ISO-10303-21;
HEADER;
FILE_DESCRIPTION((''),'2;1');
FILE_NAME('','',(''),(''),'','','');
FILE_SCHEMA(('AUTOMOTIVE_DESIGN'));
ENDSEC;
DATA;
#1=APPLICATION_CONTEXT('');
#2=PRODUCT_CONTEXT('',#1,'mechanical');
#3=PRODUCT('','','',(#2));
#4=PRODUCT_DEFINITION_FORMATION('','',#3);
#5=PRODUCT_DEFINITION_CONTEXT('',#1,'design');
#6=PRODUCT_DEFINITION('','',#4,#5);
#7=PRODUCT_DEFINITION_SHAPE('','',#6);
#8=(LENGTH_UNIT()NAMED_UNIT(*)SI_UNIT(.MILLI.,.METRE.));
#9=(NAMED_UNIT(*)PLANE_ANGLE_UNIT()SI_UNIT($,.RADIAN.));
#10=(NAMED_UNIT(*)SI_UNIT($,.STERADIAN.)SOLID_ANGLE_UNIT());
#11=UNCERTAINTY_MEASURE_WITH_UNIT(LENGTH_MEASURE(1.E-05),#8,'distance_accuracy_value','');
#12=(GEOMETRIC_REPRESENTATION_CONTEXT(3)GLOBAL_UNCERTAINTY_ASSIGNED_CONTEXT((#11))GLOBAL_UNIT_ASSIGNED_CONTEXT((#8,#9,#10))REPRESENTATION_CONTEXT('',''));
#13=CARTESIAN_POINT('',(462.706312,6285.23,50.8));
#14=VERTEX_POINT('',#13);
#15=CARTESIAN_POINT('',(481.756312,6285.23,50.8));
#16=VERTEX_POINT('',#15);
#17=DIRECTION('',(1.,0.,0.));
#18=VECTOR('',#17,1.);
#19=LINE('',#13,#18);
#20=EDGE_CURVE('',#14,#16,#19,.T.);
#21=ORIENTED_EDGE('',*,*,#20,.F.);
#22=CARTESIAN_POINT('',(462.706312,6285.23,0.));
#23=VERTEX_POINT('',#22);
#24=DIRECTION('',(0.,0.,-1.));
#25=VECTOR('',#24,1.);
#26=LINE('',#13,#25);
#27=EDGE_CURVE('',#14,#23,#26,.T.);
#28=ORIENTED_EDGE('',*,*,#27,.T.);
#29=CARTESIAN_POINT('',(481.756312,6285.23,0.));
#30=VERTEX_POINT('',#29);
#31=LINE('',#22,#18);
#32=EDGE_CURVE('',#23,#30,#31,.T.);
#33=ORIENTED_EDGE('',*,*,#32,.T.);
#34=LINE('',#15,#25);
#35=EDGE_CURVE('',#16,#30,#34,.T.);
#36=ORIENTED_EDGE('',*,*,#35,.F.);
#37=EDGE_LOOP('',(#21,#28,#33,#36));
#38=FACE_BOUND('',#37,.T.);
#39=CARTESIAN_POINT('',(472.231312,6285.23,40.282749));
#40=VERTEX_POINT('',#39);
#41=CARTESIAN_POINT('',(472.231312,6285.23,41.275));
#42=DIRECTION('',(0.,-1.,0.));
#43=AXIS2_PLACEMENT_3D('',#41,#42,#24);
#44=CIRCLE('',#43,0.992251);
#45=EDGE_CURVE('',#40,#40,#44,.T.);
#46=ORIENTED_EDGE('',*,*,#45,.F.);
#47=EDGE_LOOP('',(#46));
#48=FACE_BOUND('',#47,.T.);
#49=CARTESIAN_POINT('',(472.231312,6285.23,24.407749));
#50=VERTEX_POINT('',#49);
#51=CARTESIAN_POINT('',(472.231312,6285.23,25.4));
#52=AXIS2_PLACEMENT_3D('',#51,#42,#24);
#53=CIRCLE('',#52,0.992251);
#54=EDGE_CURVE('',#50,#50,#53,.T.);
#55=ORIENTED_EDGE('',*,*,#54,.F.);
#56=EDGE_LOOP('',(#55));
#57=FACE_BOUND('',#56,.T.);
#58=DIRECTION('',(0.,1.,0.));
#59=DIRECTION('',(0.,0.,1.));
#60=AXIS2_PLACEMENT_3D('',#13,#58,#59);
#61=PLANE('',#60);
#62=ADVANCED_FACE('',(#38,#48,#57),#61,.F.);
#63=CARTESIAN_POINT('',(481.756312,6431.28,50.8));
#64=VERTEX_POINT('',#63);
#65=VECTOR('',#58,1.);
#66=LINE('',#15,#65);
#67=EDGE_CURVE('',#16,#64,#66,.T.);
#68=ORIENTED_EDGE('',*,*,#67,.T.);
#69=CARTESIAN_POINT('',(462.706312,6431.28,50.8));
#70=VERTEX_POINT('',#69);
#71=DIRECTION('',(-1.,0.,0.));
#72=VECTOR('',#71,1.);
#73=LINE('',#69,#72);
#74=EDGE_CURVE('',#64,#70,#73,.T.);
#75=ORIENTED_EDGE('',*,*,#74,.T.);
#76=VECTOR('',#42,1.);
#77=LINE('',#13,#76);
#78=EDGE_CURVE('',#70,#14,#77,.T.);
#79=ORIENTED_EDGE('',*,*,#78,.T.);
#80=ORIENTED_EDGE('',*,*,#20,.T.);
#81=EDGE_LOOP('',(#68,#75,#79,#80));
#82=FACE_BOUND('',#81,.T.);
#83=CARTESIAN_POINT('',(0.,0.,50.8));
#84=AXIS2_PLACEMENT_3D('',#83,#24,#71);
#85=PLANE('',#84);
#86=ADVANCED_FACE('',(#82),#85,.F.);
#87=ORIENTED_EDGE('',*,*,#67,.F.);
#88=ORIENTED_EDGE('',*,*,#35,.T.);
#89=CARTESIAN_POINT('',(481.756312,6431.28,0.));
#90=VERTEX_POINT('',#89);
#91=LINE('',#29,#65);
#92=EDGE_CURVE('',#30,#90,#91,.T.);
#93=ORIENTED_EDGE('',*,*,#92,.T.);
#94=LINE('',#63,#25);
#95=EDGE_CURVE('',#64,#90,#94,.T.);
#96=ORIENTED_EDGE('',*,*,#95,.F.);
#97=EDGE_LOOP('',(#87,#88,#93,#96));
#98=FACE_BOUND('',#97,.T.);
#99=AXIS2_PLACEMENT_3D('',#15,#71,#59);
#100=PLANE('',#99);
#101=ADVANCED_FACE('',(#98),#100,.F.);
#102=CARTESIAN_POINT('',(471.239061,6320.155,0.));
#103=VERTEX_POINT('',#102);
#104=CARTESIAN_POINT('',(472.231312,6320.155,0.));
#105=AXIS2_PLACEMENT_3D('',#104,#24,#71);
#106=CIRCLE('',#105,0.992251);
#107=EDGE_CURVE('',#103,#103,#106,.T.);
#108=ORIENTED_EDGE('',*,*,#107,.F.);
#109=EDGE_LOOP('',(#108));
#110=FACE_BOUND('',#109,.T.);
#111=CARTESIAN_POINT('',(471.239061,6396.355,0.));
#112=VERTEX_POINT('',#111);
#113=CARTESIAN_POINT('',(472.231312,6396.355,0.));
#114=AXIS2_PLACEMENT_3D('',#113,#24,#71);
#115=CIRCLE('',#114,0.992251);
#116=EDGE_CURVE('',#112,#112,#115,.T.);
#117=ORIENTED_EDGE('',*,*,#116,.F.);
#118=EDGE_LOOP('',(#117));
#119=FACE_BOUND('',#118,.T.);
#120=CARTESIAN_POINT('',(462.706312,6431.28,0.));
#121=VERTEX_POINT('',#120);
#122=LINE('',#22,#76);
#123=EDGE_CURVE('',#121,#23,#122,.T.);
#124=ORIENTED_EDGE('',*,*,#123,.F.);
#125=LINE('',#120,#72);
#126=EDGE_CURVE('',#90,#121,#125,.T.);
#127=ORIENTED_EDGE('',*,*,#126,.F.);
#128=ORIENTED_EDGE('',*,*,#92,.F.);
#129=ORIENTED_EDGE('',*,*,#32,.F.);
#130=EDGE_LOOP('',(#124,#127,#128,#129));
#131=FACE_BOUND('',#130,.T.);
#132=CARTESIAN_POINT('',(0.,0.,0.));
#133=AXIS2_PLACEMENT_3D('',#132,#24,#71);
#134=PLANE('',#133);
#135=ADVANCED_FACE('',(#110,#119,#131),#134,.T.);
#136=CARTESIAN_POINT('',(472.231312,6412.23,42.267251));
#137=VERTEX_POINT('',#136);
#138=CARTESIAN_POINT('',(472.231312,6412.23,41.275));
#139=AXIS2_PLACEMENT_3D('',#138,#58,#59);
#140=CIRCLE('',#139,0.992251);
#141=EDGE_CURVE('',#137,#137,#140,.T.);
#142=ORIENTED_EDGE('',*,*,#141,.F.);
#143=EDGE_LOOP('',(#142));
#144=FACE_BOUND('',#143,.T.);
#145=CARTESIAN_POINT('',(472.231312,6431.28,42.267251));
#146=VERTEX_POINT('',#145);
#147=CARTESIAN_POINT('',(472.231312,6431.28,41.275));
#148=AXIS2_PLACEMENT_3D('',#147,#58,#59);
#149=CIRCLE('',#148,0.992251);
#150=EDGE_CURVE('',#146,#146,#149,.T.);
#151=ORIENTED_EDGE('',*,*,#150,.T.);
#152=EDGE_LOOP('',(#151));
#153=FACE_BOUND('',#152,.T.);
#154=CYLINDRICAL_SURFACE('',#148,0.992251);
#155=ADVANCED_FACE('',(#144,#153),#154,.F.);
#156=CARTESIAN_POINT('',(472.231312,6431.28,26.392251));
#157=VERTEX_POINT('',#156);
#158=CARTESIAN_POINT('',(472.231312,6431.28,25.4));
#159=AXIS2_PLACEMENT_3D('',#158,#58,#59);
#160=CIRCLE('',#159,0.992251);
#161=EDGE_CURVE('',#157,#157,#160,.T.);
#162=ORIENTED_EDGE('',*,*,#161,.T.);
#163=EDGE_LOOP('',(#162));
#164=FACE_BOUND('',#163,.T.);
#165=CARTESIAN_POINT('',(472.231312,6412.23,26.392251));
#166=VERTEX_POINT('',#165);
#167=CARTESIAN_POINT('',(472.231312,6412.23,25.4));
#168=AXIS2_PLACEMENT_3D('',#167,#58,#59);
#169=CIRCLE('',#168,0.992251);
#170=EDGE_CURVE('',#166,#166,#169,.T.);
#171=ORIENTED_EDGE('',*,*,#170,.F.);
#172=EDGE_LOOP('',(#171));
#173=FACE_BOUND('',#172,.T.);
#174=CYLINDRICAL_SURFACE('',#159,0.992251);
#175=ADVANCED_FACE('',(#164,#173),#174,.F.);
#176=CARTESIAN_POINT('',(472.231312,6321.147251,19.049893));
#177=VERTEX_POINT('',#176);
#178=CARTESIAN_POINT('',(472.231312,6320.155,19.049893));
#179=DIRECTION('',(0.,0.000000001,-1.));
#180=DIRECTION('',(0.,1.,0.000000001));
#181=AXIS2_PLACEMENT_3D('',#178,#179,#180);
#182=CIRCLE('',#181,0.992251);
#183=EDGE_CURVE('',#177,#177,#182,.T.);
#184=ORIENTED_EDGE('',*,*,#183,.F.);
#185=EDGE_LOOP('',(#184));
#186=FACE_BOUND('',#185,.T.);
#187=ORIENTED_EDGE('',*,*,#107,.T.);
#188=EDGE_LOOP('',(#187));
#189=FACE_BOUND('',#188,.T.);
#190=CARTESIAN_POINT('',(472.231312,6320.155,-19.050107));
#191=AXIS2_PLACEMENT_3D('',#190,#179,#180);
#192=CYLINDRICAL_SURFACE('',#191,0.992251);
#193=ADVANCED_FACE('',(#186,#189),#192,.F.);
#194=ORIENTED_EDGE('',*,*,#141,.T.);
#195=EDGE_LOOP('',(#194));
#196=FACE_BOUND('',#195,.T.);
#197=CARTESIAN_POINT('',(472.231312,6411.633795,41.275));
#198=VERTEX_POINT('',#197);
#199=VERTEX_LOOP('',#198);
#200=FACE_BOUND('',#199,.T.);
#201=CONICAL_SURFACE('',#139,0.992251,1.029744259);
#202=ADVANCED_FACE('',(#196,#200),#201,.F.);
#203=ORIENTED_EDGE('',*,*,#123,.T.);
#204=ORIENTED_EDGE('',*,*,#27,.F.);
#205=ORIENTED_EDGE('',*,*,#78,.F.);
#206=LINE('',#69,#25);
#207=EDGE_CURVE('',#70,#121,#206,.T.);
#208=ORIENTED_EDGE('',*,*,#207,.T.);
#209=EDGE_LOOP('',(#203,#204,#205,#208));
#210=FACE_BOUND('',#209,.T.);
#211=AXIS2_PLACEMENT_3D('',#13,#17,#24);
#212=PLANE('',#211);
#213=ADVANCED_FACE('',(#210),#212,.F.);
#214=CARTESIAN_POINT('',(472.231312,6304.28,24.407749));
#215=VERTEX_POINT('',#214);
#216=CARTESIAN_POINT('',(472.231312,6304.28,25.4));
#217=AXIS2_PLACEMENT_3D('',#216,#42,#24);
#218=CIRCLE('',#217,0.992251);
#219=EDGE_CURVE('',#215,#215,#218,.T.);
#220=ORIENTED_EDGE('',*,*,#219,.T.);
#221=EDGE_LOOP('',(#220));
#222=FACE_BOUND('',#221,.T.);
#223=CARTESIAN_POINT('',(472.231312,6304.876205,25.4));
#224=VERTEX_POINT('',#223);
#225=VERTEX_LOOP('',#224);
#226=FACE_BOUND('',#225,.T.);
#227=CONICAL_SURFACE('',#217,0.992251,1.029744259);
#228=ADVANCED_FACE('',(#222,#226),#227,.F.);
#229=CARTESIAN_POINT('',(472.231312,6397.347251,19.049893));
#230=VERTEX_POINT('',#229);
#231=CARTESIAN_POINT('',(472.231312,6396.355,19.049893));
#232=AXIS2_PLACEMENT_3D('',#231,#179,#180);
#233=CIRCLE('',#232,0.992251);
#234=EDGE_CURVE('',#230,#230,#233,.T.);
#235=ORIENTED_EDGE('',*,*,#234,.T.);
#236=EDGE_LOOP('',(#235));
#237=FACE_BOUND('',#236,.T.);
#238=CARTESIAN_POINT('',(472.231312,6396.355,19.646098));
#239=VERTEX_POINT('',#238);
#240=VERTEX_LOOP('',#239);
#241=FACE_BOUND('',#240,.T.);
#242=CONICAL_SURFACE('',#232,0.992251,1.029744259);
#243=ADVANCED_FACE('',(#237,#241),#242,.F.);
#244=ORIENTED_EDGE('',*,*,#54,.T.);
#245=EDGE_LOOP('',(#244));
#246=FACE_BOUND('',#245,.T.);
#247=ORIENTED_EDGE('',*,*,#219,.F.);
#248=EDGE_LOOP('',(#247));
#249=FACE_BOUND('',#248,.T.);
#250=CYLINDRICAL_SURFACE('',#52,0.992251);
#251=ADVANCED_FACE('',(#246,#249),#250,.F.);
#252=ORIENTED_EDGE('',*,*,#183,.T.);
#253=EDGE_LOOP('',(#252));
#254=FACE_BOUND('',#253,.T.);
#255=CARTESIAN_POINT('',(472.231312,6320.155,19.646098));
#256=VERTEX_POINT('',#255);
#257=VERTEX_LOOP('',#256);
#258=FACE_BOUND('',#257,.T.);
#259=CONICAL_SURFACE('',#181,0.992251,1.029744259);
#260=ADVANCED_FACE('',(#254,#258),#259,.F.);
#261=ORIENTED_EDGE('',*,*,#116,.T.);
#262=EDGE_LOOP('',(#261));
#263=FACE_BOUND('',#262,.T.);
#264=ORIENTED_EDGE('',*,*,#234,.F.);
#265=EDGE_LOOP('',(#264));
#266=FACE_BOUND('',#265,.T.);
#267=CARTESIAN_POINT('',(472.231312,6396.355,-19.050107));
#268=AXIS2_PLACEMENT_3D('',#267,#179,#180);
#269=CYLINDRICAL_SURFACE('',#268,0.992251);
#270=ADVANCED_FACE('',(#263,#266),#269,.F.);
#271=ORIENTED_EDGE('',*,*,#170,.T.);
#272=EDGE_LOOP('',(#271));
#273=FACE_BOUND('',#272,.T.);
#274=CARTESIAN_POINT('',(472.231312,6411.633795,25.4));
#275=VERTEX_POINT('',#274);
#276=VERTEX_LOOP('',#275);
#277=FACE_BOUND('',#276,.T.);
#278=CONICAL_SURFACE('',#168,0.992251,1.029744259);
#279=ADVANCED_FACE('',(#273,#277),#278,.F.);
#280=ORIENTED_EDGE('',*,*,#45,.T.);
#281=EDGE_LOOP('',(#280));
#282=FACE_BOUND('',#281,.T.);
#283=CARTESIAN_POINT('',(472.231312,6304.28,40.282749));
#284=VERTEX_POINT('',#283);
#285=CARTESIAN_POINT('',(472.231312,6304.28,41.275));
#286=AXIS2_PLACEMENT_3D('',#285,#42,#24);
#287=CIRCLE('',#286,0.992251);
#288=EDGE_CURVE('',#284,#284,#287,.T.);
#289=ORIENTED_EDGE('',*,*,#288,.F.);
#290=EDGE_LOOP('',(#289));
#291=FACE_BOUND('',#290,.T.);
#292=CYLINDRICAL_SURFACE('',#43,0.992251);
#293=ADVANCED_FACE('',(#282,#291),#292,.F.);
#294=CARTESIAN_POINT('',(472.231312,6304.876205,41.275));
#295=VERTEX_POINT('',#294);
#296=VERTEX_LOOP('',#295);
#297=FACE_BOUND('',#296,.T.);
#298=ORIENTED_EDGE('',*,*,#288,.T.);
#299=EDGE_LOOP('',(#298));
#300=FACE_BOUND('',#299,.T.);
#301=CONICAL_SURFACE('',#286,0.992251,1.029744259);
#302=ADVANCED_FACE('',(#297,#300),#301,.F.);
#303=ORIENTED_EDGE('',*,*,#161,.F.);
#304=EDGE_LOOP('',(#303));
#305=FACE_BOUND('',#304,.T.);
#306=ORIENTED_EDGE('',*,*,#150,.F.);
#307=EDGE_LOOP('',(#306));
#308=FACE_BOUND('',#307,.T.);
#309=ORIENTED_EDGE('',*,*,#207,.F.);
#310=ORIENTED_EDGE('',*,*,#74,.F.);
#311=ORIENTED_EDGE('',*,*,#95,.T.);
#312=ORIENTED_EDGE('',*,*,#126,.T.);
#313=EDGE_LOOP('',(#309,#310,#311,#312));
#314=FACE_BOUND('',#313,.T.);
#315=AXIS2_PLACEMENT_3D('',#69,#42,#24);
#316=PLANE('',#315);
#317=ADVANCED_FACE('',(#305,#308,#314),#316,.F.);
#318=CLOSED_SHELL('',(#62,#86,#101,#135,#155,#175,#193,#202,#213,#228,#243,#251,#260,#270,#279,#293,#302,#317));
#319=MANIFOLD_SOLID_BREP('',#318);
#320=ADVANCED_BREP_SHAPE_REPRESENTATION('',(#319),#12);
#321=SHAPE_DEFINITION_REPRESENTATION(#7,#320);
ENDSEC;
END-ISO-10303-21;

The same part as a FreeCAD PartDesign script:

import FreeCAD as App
import Part
import Sketcher

V = App.Vector
Q = App.Units.Quantity

doc = App.newDocument("Part")
params = doc.addObject("Spreadsheet::Sheet", "Params")
for row, (alias, value) in enumerate([
    ("sketch1_width", "0.75 in"),
    ("sketch1_height", "5.75 in"),
    ("pad1_length", "2 in"),
    ("hole_diameter", "1.984502 mm"),
    ("hole_depth", "1.5 in"),
    ("hole2_diameter", "1.984502 mm"),
    ("hole2_depth", "1.5 in"),
    ("hole3_diameter", "1.984502 mm"),
    ("hole3_depth", "0.75 in"),
    ("hole4_diameter", "1.984502 mm"),
    ("hole4_depth", "0.75 in"),
], start=1):
    params.set(f"A{row}", alias)
    params.set(f"B{row}", "=" + value)
    params.setAlias(f"B{row}", alias)

body = doc.addObject("PartDesign::Body", "Body")

# Sketch on XY plane
sketch1 = body.newObject("Sketcher::SketchObject", "Sketch")
sketch1.AttachmentSupport = (doc.getObject("XY_Plane"), [""])
sketch1.MapMode = "FlatFace"
sketch1.addGeometry([
    Part.LineSegment(V(463, 6431, 0), V(463, 6285, 0)),
    Part.LineSegment(V(463, 6285, 0), V(482, 6285, 0)),
    Part.LineSegment(V(482, 6285, 0), V(482, 6431, 0)),
    Part.LineSegment(V(482, 6431, 0), V(463, 6431, 0)),
], False)
sketch1.addConstraint([
    Sketcher.Constraint("Coincident", 0, 2, 1, 1),
    Sketcher.Constraint("Coincident", 1, 2, 2, 1),
    Sketcher.Constraint("Coincident", 2, 2, 3, 1),
    Sketcher.Constraint("Coincident", 3, 2, 0, 1),
    Sketcher.Constraint("Vertical", 0),
    Sketcher.Constraint("Horizontal", 1),
    Sketcher.Constraint("Vertical", 2),
    Sketcher.Constraint("Horizontal", 3),
    Sketcher.Constraint("DistanceX", 1, 1, 1, 2, Q("0.75 in")),
    Sketcher.Constraint("DistanceY", 0, 2, 0, 1, Q("5.75 in")),
    Sketcher.Constraint("DistanceY", -1, 1, 2, 2, Q("253.2 in")),
    Sketcher.Constraint("DistanceX", -1, 1, 0, 2, 462.706312),
])
sketch1.setExpression("Constraints[8]", "Params.sketch1_width")
sketch1.setExpression("Constraints[9]", "Params.sketch1_height")
pad1 = body.newObject("PartDesign::Pad", "Pad")
pad1.Profile = sketch1
pad1.setExpression("Length", "Params.pad1_length")

# Sketch on XY plane
sketch2 = body.newObject("Sketcher::SketchObject", "Sketch001")
sketch2.AttachmentSupport = (doc.getObject("XY_Plane"), [""])
sketch2.MapMode = "FlatFace"
sketch2.AttachmentOffset = App.Placement(V(0, 0, -19.050112), App.Rotation())
sketch2.addGeometry([
    Part.Circle(V(481.6, 6993.3, 0), V(0, 0, 1), 1),  # 0
    Part.Circle(V(386.3, 6993.3, 0), V(0, 0, 1), 1),  # 1
    Part.Circle(V(291.1, 6993.3, 0), V(0, 0, 1), 1),  # 2
    Part.Circle(V(295.3, 6965.1, 0), V(0, 0, 1), 1),  # 3
    Part.Circle(V(295.3, 6812.7, 0), V(0, 0, 1), 1),  # 4
    Part.Circle(V(295.3, 6660.3, 0), V(0, 0, 1), 1),  # 5
    Part.Circle(V(285.2, 6631.5, 0), V(0, 0, 1), 1),  # 6
    Part.Circle(V(475.5, 6631.5, 0), V(0, 0, 1), 1),  # 7
    Part.Circle(V(485, 6660.3, 0), V(0, 0, 1), 1),  # 8
    Part.Circle(V(485, 6812.7, 0), V(0, 0, 1), 1),  # 9
    Part.Circle(V(485, 6965.1, 0), V(0, 0, 1), 1),  # 10
    Part.Circle(V(478.4, 6611.7, 0), V(0, 0, 1), 1),  # 11
    Part.Circle(V(287.9, 6611.7, 0), V(0, 0, 1), 1),  # 12
    Part.Circle(V(308, 6564.3, 0), V(0, 0, 1), 1),  # 13
    Part.Circle(V(308, 6488.1, 0), V(0, 0, 1), 1),  # 14
    Part.Circle(V(285, 6440.8, 0), V(0, 0, 1), 1),  # 15
    Part.Circle(V(380.2, 6440.8, 0), V(0, 0, 1), 1),  # 16
    Part.Circle(V(475.5, 6440.8, 0), V(0, 0, 1), 1),  # 17
    Part.Circle(V(446.8, 6488.1, 0), V(0, 0, 1), 1),  # 18
    Part.Circle(V(446.8, 6564.3, 0), V(0, 0, 1), 1),  # 19
    Part.Circle(V(472.2, 6396.4, 0), V(0, 0, 1), 1),  # 20
    Part.Circle(V(472.2, 6320.2, 0), V(0, 0, 1), 1),  # 21
    Part.Circle(V(472.7, 6275.7, 0), V(0, 0, 1), 1),  # 22
    Part.Circle(V(377.4, 6275.7, 0), V(0, 0, 1), 1),  # 23
    Part.Circle(V(282.2, 6275.7, 0), V(0, 0, 1), 1),  # 24
    Part.Circle(V(282.6, 6320.2, 0), V(0, 0, 1), 1),  # 25
    Part.Circle(V(282.6, 6396.4, 0), V(0, 0, 1), 1),  # 26
    Part.Circle(V(435.6, 6221.7, 0), V(0, 0, 1), 1),  # 27
    Part.Circle(V(435.6, 6145.5, 0), V(0, 0, 1), 1),  # 28
    Part.Circle(V(450.6, 6091.6, 0), V(0, 0, 1), 1),  # 29
    Part.Circle(V(461, 6091.6, 0), V(0, 0, 1), 1),  # 30
    Part.Circle(V(461, 6056.6, 0), V(0, 0, 1), 1),  # 31
    Part.Circle(V(461, 5980.4, 0), V(0, 0, 1), 1),  # 32
    Part.Circle(V(461, 5945.5, 0), V(0, 0, 1), 1),  # 33
    Part.Circle(V(282.2, 5945.5, 0), V(0, 0, 1), 1),  # 34
    Part.Circle(V(368.6, 5945.5, 0), V(0, 0, 1), 1),  # 35
], False)
sketch2.addConstraint([
    Sketcher.Constraint("Equal", 0, 1),
    Sketcher.Constraint("Equal", 1, 2),
    Sketcher.Constraint("Equal", 2, 3),
    Sketcher.Constraint("Equal", 3, 4),
    Sketcher.Constraint("Equal", 4, 5),
    Sketcher.Constraint("Equal", 5, 6),
    Sketcher.Constraint("Equal", 6, 7),
    Sketcher.Constraint("Equal", 7, 8),
    Sketcher.Constraint("Equal", 8, 9),
    Sketcher.Constraint("Equal", 9, 10),
    Sketcher.Constraint("Equal", 10, 11),
    Sketcher.Constraint("Equal", 11, 12),
    Sketcher.Constraint("Equal", 12, 13),
    Sketcher.Constraint("Equal", 13, 14),
    Sketcher.Constraint("Equal", 14, 15),
    Sketcher.Constraint("Equal", 15, 16),
    Sketcher.Constraint("Equal", 16, 17),
    Sketcher.Constraint("Equal", 17, 18),
    Sketcher.Constraint("Equal", 18, 19),
    Sketcher.Constraint("Equal", 19, 20),
    Sketcher.Constraint("Equal", 20, 21),
    Sketcher.Constraint("Equal", 21, 22),
    Sketcher.Constraint("Equal", 22, 23),
    Sketcher.Constraint("Equal", 23, 24),
    Sketcher.Constraint("Equal", 24, 25),
    Sketcher.Constraint("Equal", 25, 26),
    Sketcher.Constraint("Equal", 26, 27),
    Sketcher.Constraint("Equal", 27, 28),
    Sketcher.Constraint("Equal", 28, 29),
    Sketcher.Constraint("Equal", 29, 30),
    Sketcher.Constraint("Equal", 30, 31),
    Sketcher.Constraint("Equal", 31, 32),
    Sketcher.Constraint("Equal", 32, 33),
    Sketcher.Constraint("Equal", 33, 34),
    Sketcher.Constraint("Equal", 34, 35),
    Sketcher.Constraint("Horizontal", 0, 3, 1, 3),
    Sketcher.Constraint("Horizontal", 1, 3, 2, 3),
    Sketcher.Constraint("Horizontal", 5, 3, 8, 3),
    Sketcher.Constraint("Horizontal", 4, 3, 9, 3),
    Sketcher.Constraint("Horizontal", 3, 3, 10, 3),
    Sketcher.Constraint("Horizontal", 11, 3, 12, 3),
    Sketcher.Constraint("Horizontal", 15, 3, 16, 3),
    Sketcher.Constraint("Horizontal", 16, 3, 17, 3),
    Sketcher.Constraint("Horizontal", 14, 3, 18, 3),
    Sketcher.Constraint("Horizontal", 13, 3, 19, 3),
    Sketcher.Constraint("Horizontal", 22, 3, 23, 3),
    Sketcher.Constraint("Horizontal", 23, 3, 24, 3),
    Sketcher.Constraint("Horizontal", 21, 3, 25, 3),
    Sketcher.Constraint("Horizontal", 20, 3, 26, 3),
    Sketcher.Constraint("Horizontal", 33, 3, 34, 3),
    Sketcher.Constraint("Horizontal", 34, 3, 35, 3),
    Sketcher.Constraint("Vertical", 3, 3, 4, 3),
    Sketcher.Constraint("Vertical", 4, 3, 5, 3),
    Sketcher.Constraint("Vertical", 8, 3, 9, 3),
    Sketcher.Constraint("Vertical", 9, 3, 10, 3),
    Sketcher.Constraint("Vertical", 13, 3, 14, 3),
    Sketcher.Constraint("Vertical", 18, 3, 19, 3),
    Sketcher.Constraint("Vertical", 20, 3, 21, 3),
    Sketcher.Constraint("Vertical", 25, 3, 26, 3),
    Sketcher.Constraint("Vertical", 27, 3, 28, 3),
    Sketcher.Constraint("Vertical", 30, 3, 31, 3),
    Sketcher.Constraint("Vertical", 31, 3, 32, 3),
    Sketcher.Constraint("Vertical", 32, 3, 33, 3),
    Sketcher.Constraint("Vertical", 24, 3, 34, 3),
    Sketcher.Constraint("DistanceY", 4, 3, 3, 3, Q("6 in")),
    Sketcher.Constraint("DistanceY", 5, 3, 4, 3, Q("6 in")),
    Sketcher.Constraint("DistanceY", 14, 3, 13, 3, Q("3 in")),
    Sketcher.Constraint("DistanceX", 18, 3, 20, 3, Q("1 in")),
    Sketcher.Constraint("DistanceY", 21, 3, 20, 3, Q("3 in")),
    Sketcher.Constraint("DistanceX", 25, 3, 14, 3, Q("1 in")),
    Sketcher.Constraint("DistanceY", 28, 3, 27, 3, Q("3 in")),
    Sketcher.Constraint("DistanceY", 29, 3, 21, 3, Q("9 in")),
    Sketcher.Constraint("DistanceX", 28, 3, 30, 3, Q("1 in")),
    Sketcher.Constraint("DistanceY", 32, 3, 31, 3, Q("3 in")),
    Sketcher.Constraint("DistanceX", 2, 3, 0, 3, Q("7.5 in")),
    Sketcher.Constraint("DistanceX", 12, 3, 11, 3, Q("7.5 in")),
    Sketcher.Constraint("DistanceX", 5, 3, 13, 3, Q("0.5 in")),
    Sketcher.Constraint("DistanceX", 15, 3, 17, 3, Q("7.5 in")),
    Sketcher.Constraint("DistanceY", 22, 3, 17, 3, Q("6.5 in")),
    Sketcher.Constraint("DistanceX", 24, 3, 22, 3, Q("7.5 in")),
    Sketcher.Constraint("DistanceY", 31, 3, 28, 3, Q("3.5 in")),
    Sketcher.Constraint("DistanceY", -1, 1, 27, 3, Q("244.95 in")),
    Sketcher.Constraint("DistanceX", 1, 3, 0, 3, Q("3.75 in")),
    Sketcher.Constraint("DistanceX", 15, 3, 16, 3, Q("3.75 in")),
    Sketcher.Constraint("DistanceY", 20, 3, 17, 3, Q("1.75 in")),
    Sketcher.Constraint("DistanceX", 23, 3, 22, 3, Q("3.75 in")),
    Sketcher.Constraint("DistanceY", 33, 3, 29, 3, Q("5.75 in")),
    Sketcher.Constraint("DistanceX", -1, 1, 3, 3, Q("11.625 in")),
    Sketcher.Constraint("DistanceY", -1, 1, 11, 3, Q("260.302 in")),
    Sketcher.Constraint("DistanceY", -1, 1, 15, 3, Q("253.575 in")),
    Sketcher.Constraint("DistanceX", 7, 3, 8, 3, Q("0.375 in")),
    Sketcher.Constraint("Diameter", 0, 1.984502),
    Sketcher.Constraint("DistanceY", -1, 1, 13, 3, Q("258.4385 in")),
    Sketcher.Constraint("DistanceY", 6, 3, 5, 3, Q("1.1364998 in")),
    Sketcher.Constraint("DistanceX", 18, 3, 17, 3, 28.629601),
    Sketcher.Constraint("DistanceX", -1, 1, 0, 3, 481.589248),
    Sketcher.Constraint("DistanceY", -1, 1, 3, 3, 6965.135938),
    Sketcher.Constraint("DistanceX", -1, 1, 29, 3, 450.592518),
    Sketcher.Constraint("DistanceY", -1, 1, 30, 3, 6091.555478),
    Sketcher.Constraint("DistanceY", 6, 3, 2, 3, 361.786149),
    Sketcher.Constraint("DistanceX", 7, 3, 0, 3, 6.111941),
    Sketcher.Constraint("DistanceY", 7, 3, 0, 3, 361.78624),
    Sketcher.Constraint("DistanceX", 7, 3, 11, 3, 2.88831),
    Sketcher.Constraint("DistanceX", 15, 3, 6, 3, 0.205449),
    Sketcher.Constraint("DistanceX", 27, 3, 22, 3, 37.05451),
    Sketcher.Constraint("DistanceX", 28, 3, 29, 3, 14.993872),
    Sketcher.Constraint("DistanceX", -1, 1, 6, 3, 285.166362),
    Sketcher.Constraint("DistanceX", -1, 1, 35, 3, 368.611823),
])
doc.recompute()
hole = body.newObject("PartDesign::Hole", "Hole")
hole.Profile = sketch2
hole.ThreadType = "None"
hole.setExpression("Diameter", "Params.hole_diameter")
hole.DepthType = "Dimension"
hole.setExpression("Depth", "Params.hole_depth")
hole.DrillPoint = "Angled"
hole.DrillPointAngle = 118
hole.Reversed = True

# Sketch on XY plane
sketch3 = body.newObject("Sketcher::SketchObject", "Sketch002")
sketch3.AttachmentSupport = (doc.getObject("XY_Plane"), [""])
sketch3.MapMode = "FlatFace"
sketch3.AttachmentOffset = App.Placement(V(0, 0, -19.050112), App.Rotation())
sketch3.addGeometry([
    Part.Circle(V(671.2, 6993.3, 0), V(0, 0, 1), 1),  # 0
    Part.Circle(V(576, 6993.3, 0), V(0, 0, 1), 1),  # 1
    Part.Circle(V(480.7, 6993.3, 0), V(0, 0, 1), 1),  # 2
    Part.Circle(V(484.9, 6965.1, 0), V(0, 0, 1), 1),  # 3
    Part.Circle(V(484.9, 6812.7, 0), V(0, 0, 1), 1),  # 4
    Part.Circle(V(484.9, 6660.3, 0), V(0, 0, 1), 1),  # 5
    Part.Circle(V(474.8, 6631.5, 0), V(0, 0, 1), 1),  # 6
    Part.Circle(V(665.1, 6631.5, 0), V(0, 0, 1), 1),  # 7
    Part.Circle(V(674.7, 6660.3, 0), V(0, 0, 1), 1),  # 8
    Part.Circle(V(674.7, 6812.7, 0), V(0, 0, 1), 1),  # 9
    Part.Circle(V(674.7, 6965.1, 0), V(0, 0, 1), 1),  # 10
    Part.Circle(V(668, 6611.7, 0), V(0, 0, 1), 1),  # 11
    Part.Circle(V(477.5, 6611.7, 0), V(0, 0, 1), 1),  # 12
    Part.Circle(V(497.6, 6564.3, 0), V(0, 0, 1), 1),  # 13
    Part.Circle(V(497.6, 6488.1, 0), V(0, 0, 1), 1),  # 14
    Part.Circle(V(474.6, 6440.8, 0), V(0, 0, 1), 1),  # 15
    Part.Circle(V(569.9, 6440.8, 0), V(0, 0, 1), 1),  # 16
    Part.Circle(V(665.1, 6440.8, 0), V(0, 0, 1), 1),  # 17
    Part.Circle(V(636.5, 6488.1, 0), V(0, 0, 1), 1),  # 18
    Part.Circle(V(636.5, 6564.3, 0), V(0, 0, 1), 1),  # 19
    Part.Circle(V(661.9, 6396.4, 0), V(0, 0, 1), 1),  # 20
    Part.Circle(V(661.9, 6320.2, 0), V(0, 0, 1), 1),  # 21
    Part.Circle(V(662.3, 6275.7, 0), V(0, 0, 1), 1),  # 22
    Part.Circle(V(567.1, 6275.7, 0), V(0, 0, 1), 1),  # 23
    Part.Circle(V(471.8, 6275.7, 0), V(0, 0, 1), 1),  # 24
    Part.Circle(V(472.2, 6320.2, 0), V(0, 0, 1), 1),  # 25
    Part.Circle(V(472.2, 6396.4, 0), V(0, 0, 1), 1),  # 26
    Part.Circle(V(625.3, 6221.7, 0), V(0, 0, 1), 1),  # 27
    Part.Circle(V(625.3, 6145.5, 0), V(0, 0, 1), 1),  # 28
    Part.Circle(V(640.2, 6091.6, 0), V(0, 0, 1), 1),  # 29
    Part.Circle(V(650.7, 6091.6, 0), V(0, 0, 1), 1),  # 30
    Part.Circle(V(650.7, 6056.6, 0), V(0, 0, 1), 1),  # 31
    Part.Circle(V(650.7, 5980.4, 0), V(0, 0, 1), 1),  # 32
    Part.Circle(V(650.7, 5945.5, 0), V(0, 0, 1), 1),  # 33
    Part.Circle(V(471.8, 5945.5, 0), V(0, 0, 1), 1),  # 34
    Part.Circle(V(558.3, 5945.5, 0), V(0, 0, 1), 1),  # 35
], False)
sketch3.addConstraint([
    Sketcher.Constraint("Equal", 0, 1),
    Sketcher.Constraint("Equal", 1, 2),
    Sketcher.Constraint("Equal", 2, 3),
    Sketcher.Constraint("Equal", 3, 4),
    Sketcher.Constraint("Equal", 4, 5),
    Sketcher.Constraint("Equal", 5, 6),
    Sketcher.Constraint("Equal", 6, 7),
    Sketcher.Constraint("Equal", 7, 8),
    Sketcher.Constraint("Equal", 8, 9),
    Sketcher.Constraint("Equal", 9, 10),
    Sketcher.Constraint("Equal", 10, 11),
    Sketcher.Constraint("Equal", 11, 12),
    Sketcher.Constraint("Equal", 12, 13),
    Sketcher.Constraint("Equal", 13, 14),
    Sketcher.Constraint("Equal", 14, 15),
    Sketcher.Constraint("Equal", 15, 16),
    Sketcher.Constraint("Equal", 16, 17),
    Sketcher.Constraint("Equal", 17, 18),
    Sketcher.Constraint("Equal", 18, 19),
    Sketcher.Constraint("Equal", 19, 20),
    Sketcher.Constraint("Equal", 20, 21),
    Sketcher.Constraint("Equal", 21, 22),
    Sketcher.Constraint("Equal", 22, 23),
    Sketcher.Constraint("Equal", 23, 24),
    Sketcher.Constraint("Equal", 24, 25),
    Sketcher.Constraint("Equal", 25, 26),
    Sketcher.Constraint("Equal", 26, 27),
    Sketcher.Constraint("Equal", 27, 28),
    Sketcher.Constraint("Equal", 28, 29),
    Sketcher.Constraint("Equal", 29, 30),
    Sketcher.Constraint("Equal", 30, 31),
    Sketcher.Constraint("Equal", 31, 32),
    Sketcher.Constraint("Equal", 32, 33),
    Sketcher.Constraint("Equal", 33, 34),
    Sketcher.Constraint("Equal", 34, 35),
    Sketcher.Constraint("Horizontal", 0, 3, 1, 3),
    Sketcher.Constraint("Horizontal", 1, 3, 2, 3),
    Sketcher.Constraint("Horizontal", 5, 3, 8, 3),
    Sketcher.Constraint("Horizontal", 4, 3, 9, 3),
    Sketcher.Constraint("Horizontal", 3, 3, 10, 3),
    Sketcher.Constraint("Horizontal", 11, 3, 12, 3),
    Sketcher.Constraint("Horizontal", 15, 3, 16, 3),
    Sketcher.Constraint("Horizontal", 16, 3, 17, 3),
    Sketcher.Constraint("Horizontal", 14, 3, 18, 3),
    Sketcher.Constraint("Horizontal", 13, 3, 19, 3),
    Sketcher.Constraint("Horizontal", 22, 3, 23, 3),
    Sketcher.Constraint("Horizontal", 23, 3, 24, 3),
    Sketcher.Constraint("Horizontal", 21, 3, 25, 3),
    Sketcher.Constraint("Horizontal", 20, 3, 26, 3),
    Sketcher.Constraint("Horizontal", 33, 3, 34, 3),
    Sketcher.Constraint("Horizontal", 34, 3, 35, 3),
    Sketcher.Constraint("Vertical", 3, 3, 4, 3),
    Sketcher.Constraint("Vertical", 4, 3, 5, 3),
    Sketcher.Constraint("Vertical", 8, 3, 9, 3),
    Sketcher.Constraint("Vertical", 9, 3, 10, 3),
    Sketcher.Constraint("Vertical", 13, 3, 14, 3),
    Sketcher.Constraint("Vertical", 18, 3, 19, 3),
    Sketcher.Constraint("Vertical", 20, 3, 21, 3),
    Sketcher.Constraint("Vertical", 25, 3, 26, 3),
    Sketcher.Constraint("Vertical", 27, 3, 28, 3),
    Sketcher.Constraint("Vertical", 30, 3, 31, 3),
    Sketcher.Constraint("Vertical", 31, 3, 32, 3),
    Sketcher.Constraint("Vertical", 32, 3, 33, 3),
    Sketcher.Constraint("Vertical", 24, 3, 34, 3),
    Sketcher.Constraint("DistanceY", 4, 3, 3, 3, Q("6 in")),
    Sketcher.Constraint("DistanceY", 5, 3, 4, 3, Q("6 in")),
    Sketcher.Constraint("DistanceY", 14, 3, 13, 3, Q("3 in")),
    Sketcher.Constraint("DistanceX", 18, 3, 20, 3, Q("1 in")),
    Sketcher.Constraint("DistanceY", 21, 3, 20, 3, Q("3 in")),
    Sketcher.Constraint("DistanceX", 25, 3, 14, 3, Q("1 in")),
    Sketcher.Constraint("DistanceY", 28, 3, 27, 3, Q("3 in")),
    Sketcher.Constraint("DistanceY", 29, 3, 21, 3, Q("9 in")),
    Sketcher.Constraint("DistanceX", 28, 3, 30, 3, Q("1 in")),
    Sketcher.Constraint("DistanceY", 32, 3, 31, 3, Q("3 in")),
    Sketcher.Constraint("DistanceX", 2, 3, 0, 3, Q("7.5 in")),
    Sketcher.Constraint("DistanceX", 12, 3, 11, 3, Q("7.5 in")),
    Sketcher.Constraint("DistanceX", 5, 3, 13, 3, Q("0.5 in")),
    Sketcher.Constraint("DistanceX", 15, 3, 17, 3, Q("7.5 in")),
    Sketcher.Constraint("DistanceY", 22, 3, 17, 3, Q("6.5 in")),
    Sketcher.Constraint("DistanceX", 24, 3, 22, 3, Q("7.5 in")),
    Sketcher.Constraint("DistanceY", 31, 3, 28, 3, Q("3.5 in")),
    Sketcher.Constraint("DistanceY", -1, 1, 27, 3, Q("244.95 in")),
    Sketcher.Constraint("DistanceX", 1, 3, 0, 3, Q("3.75 in")),
    Sketcher.Constraint("DistanceX", 15, 3, 16, 3, Q("3.75 in")),
    Sketcher.Constraint("DistanceY", 20, 3, 17, 3, Q("1.75 in")),
    Sketcher.Constraint("DistanceX", 23, 3, 22, 3, Q("3.75 in")),
    Sketcher.Constraint("DistanceY", 33, 3, 29, 3, Q("5.75 in")),
    Sketcher.Constraint("DistanceY", -1, 1, 11, 3, Q("260.302 in")),
    Sketcher.Constraint("DistanceY", -1, 1, 15, 3, Q("253.575 in")),
    Sketcher.Constraint("DistanceX", 7, 3, 8, 3, Q("0.375 in")),
    Sketcher.Constraint("Diameter", 0, 1.984502),
    Sketcher.Constraint("DistanceY", -1, 1, 13, 3, Q("258.4385 in")),
    Sketcher.Constraint("DistanceY", 6, 3, 5, 3, Q("1.1364998 in")),
    Sketcher.Constraint("DistanceX", 18, 3, 17, 3, 28.629601),
    Sketcher.Constraint("DistanceX", -1, 1, 0, 3, 671.245561),
    Sketcher.Constraint("DistanceY", -1, 1, 3, 3, 6965.135938),
    Sketcher.Constraint("DistanceX", -1, 1, 7, 3, 665.13362),
    Sketcher.Constraint("DistanceX", -1, 1, 11, 3, 668.02193),
    Sketcher.Constraint("DistanceX", -1, 1, 22, 3, 662.309469),
    Sketcher.Constraint("DistanceX", -1, 1, 27, 3, 625.254959),
    Sketcher.Constraint("DistanceX", -1, 1, 29, 3, 640.248831),
    Sketcher.Constraint("DistanceY", -1, 1, 30, 3, 6091.555478),
    Sketcher.Constraint("DistanceX", 2, 3, 3, 3, 4.185752),
    Sketcher.Constraint("DistanceY", 6, 3, 2, 3, 361.786149),
    Sketcher.Constraint("DistanceY", 7, 3, 0, 3, 361.78624),
    Sketcher.Constraint("DistanceX", 15, 3, 6, 3, 0.205449),
    Sketcher.Constraint("DistanceX", -1, 1, 6, 3, 474.822675),
    Sketcher.Constraint("DistanceX", -1, 1, 35, 3, 558.268136),
])
doc.recompute()
hole2 = body.newObject("PartDesign::Hole", "Hole001")
hole2.Profile = sketch3
hole2.ThreadType = "None"
hole2.setExpression("Diameter", "Params.hole2_diameter")
hole2.DepthType = "Dimension"
hole2.setExpression("Depth", "Params.hole2_depth")
hole2.DrillPoint = "Angled"
hole2.DrillPointAngle = 118
hole2.Reversed = True

# Sketch on XZ plane
sketch4 = body.newObject("Sketcher::SketchObject", "Sketch003")
sketch4.AttachmentSupport = (doc.getObject("XZ_Plane"), [""])
sketch4.MapMode = "FlatFace"
sketch4.AttachmentOffset = App.Placement(V(0, 0, -253.2 * 25.4), App.Rotation())
sketch4.addGeometry([
    Part.Circle(V(472.2, 41.3, 0), V(0, 0, 1), 1),
    Part.Circle(V(472.2, 25.4, 0), V(0, 0, 1), 1),
], False)
sketch4.addConstraint([
    Sketcher.Constraint("Equal", 0, 1),
    Sketcher.Constraint("Vertical", 0, 3, 1, 3),
    Sketcher.Constraint("DistanceY", -1, 1, 1, 3, Q("1 in")),
    Sketcher.Constraint("DistanceY", -1, 1, 0, 3, Q("1.625 in")),
    Sketcher.Constraint("Diameter", 0, 1.984502),
    Sketcher.Constraint("DistanceX", -1, 1, 0, 3, 472.231312),
])
doc.recompute()
hole3 = body.newObject("PartDesign::Hole", "Hole002")
hole3.Profile = sketch4
hole3.ThreadType = "None"
hole3.setExpression("Diameter", "Params.hole3_diameter")
hole3.DepthType = "Dimension"
hole3.setExpression("Depth", "Params.hole3_depth")
hole3.DrillPoint = "Angled"
hole3.DrillPointAngle = 118
hole3.Reversed = True

# Sketch on XZ plane
sketch5 = body.newObject("Sketcher::SketchObject", "Sketch004")
sketch5.AttachmentSupport = (doc.getObject("XZ_Plane"), [""])
sketch5.MapMode = "FlatFace"
sketch5.AttachmentOffset = App.Placement(V(0, 0, -247.45 * 25.4), App.Rotation())
sketch5.addGeometry([
    Part.Circle(V(472.2, 25.4, 0), V(0, 0, 1), 1),
    Part.Circle(V(472.2, 41.3, 0), V(0, 0, 1), 1),
], False)
sketch5.addConstraint([
    Sketcher.Constraint("Equal", 0, 1),
    Sketcher.Constraint("Vertical", 0, 3, 1, 3),
    Sketcher.Constraint("DistanceY", -1, 1, 0, 3, Q("1 in")),
    Sketcher.Constraint("DistanceY", -1, 1, 1, 3, Q("1.625 in")),
    Sketcher.Constraint("Diameter", 0, 1.984502),
    Sketcher.Constraint("DistanceX", -1, 1, 0, 3, 472.231312),
])
doc.recompute()
hole4 = body.newObject("PartDesign::Hole", "Hole003")
hole4.Profile = sketch5
hole4.ThreadType = "None"
hole4.setExpression("Diameter", "Params.hole4_diameter")
hole4.DepthType = "Dimension"
hole4.setExpression("Depth", "Params.hole4_depth")
hole4.DrillPoint = "Angled"
hole4.DrillPointAngle = 118

doc.recompute()
